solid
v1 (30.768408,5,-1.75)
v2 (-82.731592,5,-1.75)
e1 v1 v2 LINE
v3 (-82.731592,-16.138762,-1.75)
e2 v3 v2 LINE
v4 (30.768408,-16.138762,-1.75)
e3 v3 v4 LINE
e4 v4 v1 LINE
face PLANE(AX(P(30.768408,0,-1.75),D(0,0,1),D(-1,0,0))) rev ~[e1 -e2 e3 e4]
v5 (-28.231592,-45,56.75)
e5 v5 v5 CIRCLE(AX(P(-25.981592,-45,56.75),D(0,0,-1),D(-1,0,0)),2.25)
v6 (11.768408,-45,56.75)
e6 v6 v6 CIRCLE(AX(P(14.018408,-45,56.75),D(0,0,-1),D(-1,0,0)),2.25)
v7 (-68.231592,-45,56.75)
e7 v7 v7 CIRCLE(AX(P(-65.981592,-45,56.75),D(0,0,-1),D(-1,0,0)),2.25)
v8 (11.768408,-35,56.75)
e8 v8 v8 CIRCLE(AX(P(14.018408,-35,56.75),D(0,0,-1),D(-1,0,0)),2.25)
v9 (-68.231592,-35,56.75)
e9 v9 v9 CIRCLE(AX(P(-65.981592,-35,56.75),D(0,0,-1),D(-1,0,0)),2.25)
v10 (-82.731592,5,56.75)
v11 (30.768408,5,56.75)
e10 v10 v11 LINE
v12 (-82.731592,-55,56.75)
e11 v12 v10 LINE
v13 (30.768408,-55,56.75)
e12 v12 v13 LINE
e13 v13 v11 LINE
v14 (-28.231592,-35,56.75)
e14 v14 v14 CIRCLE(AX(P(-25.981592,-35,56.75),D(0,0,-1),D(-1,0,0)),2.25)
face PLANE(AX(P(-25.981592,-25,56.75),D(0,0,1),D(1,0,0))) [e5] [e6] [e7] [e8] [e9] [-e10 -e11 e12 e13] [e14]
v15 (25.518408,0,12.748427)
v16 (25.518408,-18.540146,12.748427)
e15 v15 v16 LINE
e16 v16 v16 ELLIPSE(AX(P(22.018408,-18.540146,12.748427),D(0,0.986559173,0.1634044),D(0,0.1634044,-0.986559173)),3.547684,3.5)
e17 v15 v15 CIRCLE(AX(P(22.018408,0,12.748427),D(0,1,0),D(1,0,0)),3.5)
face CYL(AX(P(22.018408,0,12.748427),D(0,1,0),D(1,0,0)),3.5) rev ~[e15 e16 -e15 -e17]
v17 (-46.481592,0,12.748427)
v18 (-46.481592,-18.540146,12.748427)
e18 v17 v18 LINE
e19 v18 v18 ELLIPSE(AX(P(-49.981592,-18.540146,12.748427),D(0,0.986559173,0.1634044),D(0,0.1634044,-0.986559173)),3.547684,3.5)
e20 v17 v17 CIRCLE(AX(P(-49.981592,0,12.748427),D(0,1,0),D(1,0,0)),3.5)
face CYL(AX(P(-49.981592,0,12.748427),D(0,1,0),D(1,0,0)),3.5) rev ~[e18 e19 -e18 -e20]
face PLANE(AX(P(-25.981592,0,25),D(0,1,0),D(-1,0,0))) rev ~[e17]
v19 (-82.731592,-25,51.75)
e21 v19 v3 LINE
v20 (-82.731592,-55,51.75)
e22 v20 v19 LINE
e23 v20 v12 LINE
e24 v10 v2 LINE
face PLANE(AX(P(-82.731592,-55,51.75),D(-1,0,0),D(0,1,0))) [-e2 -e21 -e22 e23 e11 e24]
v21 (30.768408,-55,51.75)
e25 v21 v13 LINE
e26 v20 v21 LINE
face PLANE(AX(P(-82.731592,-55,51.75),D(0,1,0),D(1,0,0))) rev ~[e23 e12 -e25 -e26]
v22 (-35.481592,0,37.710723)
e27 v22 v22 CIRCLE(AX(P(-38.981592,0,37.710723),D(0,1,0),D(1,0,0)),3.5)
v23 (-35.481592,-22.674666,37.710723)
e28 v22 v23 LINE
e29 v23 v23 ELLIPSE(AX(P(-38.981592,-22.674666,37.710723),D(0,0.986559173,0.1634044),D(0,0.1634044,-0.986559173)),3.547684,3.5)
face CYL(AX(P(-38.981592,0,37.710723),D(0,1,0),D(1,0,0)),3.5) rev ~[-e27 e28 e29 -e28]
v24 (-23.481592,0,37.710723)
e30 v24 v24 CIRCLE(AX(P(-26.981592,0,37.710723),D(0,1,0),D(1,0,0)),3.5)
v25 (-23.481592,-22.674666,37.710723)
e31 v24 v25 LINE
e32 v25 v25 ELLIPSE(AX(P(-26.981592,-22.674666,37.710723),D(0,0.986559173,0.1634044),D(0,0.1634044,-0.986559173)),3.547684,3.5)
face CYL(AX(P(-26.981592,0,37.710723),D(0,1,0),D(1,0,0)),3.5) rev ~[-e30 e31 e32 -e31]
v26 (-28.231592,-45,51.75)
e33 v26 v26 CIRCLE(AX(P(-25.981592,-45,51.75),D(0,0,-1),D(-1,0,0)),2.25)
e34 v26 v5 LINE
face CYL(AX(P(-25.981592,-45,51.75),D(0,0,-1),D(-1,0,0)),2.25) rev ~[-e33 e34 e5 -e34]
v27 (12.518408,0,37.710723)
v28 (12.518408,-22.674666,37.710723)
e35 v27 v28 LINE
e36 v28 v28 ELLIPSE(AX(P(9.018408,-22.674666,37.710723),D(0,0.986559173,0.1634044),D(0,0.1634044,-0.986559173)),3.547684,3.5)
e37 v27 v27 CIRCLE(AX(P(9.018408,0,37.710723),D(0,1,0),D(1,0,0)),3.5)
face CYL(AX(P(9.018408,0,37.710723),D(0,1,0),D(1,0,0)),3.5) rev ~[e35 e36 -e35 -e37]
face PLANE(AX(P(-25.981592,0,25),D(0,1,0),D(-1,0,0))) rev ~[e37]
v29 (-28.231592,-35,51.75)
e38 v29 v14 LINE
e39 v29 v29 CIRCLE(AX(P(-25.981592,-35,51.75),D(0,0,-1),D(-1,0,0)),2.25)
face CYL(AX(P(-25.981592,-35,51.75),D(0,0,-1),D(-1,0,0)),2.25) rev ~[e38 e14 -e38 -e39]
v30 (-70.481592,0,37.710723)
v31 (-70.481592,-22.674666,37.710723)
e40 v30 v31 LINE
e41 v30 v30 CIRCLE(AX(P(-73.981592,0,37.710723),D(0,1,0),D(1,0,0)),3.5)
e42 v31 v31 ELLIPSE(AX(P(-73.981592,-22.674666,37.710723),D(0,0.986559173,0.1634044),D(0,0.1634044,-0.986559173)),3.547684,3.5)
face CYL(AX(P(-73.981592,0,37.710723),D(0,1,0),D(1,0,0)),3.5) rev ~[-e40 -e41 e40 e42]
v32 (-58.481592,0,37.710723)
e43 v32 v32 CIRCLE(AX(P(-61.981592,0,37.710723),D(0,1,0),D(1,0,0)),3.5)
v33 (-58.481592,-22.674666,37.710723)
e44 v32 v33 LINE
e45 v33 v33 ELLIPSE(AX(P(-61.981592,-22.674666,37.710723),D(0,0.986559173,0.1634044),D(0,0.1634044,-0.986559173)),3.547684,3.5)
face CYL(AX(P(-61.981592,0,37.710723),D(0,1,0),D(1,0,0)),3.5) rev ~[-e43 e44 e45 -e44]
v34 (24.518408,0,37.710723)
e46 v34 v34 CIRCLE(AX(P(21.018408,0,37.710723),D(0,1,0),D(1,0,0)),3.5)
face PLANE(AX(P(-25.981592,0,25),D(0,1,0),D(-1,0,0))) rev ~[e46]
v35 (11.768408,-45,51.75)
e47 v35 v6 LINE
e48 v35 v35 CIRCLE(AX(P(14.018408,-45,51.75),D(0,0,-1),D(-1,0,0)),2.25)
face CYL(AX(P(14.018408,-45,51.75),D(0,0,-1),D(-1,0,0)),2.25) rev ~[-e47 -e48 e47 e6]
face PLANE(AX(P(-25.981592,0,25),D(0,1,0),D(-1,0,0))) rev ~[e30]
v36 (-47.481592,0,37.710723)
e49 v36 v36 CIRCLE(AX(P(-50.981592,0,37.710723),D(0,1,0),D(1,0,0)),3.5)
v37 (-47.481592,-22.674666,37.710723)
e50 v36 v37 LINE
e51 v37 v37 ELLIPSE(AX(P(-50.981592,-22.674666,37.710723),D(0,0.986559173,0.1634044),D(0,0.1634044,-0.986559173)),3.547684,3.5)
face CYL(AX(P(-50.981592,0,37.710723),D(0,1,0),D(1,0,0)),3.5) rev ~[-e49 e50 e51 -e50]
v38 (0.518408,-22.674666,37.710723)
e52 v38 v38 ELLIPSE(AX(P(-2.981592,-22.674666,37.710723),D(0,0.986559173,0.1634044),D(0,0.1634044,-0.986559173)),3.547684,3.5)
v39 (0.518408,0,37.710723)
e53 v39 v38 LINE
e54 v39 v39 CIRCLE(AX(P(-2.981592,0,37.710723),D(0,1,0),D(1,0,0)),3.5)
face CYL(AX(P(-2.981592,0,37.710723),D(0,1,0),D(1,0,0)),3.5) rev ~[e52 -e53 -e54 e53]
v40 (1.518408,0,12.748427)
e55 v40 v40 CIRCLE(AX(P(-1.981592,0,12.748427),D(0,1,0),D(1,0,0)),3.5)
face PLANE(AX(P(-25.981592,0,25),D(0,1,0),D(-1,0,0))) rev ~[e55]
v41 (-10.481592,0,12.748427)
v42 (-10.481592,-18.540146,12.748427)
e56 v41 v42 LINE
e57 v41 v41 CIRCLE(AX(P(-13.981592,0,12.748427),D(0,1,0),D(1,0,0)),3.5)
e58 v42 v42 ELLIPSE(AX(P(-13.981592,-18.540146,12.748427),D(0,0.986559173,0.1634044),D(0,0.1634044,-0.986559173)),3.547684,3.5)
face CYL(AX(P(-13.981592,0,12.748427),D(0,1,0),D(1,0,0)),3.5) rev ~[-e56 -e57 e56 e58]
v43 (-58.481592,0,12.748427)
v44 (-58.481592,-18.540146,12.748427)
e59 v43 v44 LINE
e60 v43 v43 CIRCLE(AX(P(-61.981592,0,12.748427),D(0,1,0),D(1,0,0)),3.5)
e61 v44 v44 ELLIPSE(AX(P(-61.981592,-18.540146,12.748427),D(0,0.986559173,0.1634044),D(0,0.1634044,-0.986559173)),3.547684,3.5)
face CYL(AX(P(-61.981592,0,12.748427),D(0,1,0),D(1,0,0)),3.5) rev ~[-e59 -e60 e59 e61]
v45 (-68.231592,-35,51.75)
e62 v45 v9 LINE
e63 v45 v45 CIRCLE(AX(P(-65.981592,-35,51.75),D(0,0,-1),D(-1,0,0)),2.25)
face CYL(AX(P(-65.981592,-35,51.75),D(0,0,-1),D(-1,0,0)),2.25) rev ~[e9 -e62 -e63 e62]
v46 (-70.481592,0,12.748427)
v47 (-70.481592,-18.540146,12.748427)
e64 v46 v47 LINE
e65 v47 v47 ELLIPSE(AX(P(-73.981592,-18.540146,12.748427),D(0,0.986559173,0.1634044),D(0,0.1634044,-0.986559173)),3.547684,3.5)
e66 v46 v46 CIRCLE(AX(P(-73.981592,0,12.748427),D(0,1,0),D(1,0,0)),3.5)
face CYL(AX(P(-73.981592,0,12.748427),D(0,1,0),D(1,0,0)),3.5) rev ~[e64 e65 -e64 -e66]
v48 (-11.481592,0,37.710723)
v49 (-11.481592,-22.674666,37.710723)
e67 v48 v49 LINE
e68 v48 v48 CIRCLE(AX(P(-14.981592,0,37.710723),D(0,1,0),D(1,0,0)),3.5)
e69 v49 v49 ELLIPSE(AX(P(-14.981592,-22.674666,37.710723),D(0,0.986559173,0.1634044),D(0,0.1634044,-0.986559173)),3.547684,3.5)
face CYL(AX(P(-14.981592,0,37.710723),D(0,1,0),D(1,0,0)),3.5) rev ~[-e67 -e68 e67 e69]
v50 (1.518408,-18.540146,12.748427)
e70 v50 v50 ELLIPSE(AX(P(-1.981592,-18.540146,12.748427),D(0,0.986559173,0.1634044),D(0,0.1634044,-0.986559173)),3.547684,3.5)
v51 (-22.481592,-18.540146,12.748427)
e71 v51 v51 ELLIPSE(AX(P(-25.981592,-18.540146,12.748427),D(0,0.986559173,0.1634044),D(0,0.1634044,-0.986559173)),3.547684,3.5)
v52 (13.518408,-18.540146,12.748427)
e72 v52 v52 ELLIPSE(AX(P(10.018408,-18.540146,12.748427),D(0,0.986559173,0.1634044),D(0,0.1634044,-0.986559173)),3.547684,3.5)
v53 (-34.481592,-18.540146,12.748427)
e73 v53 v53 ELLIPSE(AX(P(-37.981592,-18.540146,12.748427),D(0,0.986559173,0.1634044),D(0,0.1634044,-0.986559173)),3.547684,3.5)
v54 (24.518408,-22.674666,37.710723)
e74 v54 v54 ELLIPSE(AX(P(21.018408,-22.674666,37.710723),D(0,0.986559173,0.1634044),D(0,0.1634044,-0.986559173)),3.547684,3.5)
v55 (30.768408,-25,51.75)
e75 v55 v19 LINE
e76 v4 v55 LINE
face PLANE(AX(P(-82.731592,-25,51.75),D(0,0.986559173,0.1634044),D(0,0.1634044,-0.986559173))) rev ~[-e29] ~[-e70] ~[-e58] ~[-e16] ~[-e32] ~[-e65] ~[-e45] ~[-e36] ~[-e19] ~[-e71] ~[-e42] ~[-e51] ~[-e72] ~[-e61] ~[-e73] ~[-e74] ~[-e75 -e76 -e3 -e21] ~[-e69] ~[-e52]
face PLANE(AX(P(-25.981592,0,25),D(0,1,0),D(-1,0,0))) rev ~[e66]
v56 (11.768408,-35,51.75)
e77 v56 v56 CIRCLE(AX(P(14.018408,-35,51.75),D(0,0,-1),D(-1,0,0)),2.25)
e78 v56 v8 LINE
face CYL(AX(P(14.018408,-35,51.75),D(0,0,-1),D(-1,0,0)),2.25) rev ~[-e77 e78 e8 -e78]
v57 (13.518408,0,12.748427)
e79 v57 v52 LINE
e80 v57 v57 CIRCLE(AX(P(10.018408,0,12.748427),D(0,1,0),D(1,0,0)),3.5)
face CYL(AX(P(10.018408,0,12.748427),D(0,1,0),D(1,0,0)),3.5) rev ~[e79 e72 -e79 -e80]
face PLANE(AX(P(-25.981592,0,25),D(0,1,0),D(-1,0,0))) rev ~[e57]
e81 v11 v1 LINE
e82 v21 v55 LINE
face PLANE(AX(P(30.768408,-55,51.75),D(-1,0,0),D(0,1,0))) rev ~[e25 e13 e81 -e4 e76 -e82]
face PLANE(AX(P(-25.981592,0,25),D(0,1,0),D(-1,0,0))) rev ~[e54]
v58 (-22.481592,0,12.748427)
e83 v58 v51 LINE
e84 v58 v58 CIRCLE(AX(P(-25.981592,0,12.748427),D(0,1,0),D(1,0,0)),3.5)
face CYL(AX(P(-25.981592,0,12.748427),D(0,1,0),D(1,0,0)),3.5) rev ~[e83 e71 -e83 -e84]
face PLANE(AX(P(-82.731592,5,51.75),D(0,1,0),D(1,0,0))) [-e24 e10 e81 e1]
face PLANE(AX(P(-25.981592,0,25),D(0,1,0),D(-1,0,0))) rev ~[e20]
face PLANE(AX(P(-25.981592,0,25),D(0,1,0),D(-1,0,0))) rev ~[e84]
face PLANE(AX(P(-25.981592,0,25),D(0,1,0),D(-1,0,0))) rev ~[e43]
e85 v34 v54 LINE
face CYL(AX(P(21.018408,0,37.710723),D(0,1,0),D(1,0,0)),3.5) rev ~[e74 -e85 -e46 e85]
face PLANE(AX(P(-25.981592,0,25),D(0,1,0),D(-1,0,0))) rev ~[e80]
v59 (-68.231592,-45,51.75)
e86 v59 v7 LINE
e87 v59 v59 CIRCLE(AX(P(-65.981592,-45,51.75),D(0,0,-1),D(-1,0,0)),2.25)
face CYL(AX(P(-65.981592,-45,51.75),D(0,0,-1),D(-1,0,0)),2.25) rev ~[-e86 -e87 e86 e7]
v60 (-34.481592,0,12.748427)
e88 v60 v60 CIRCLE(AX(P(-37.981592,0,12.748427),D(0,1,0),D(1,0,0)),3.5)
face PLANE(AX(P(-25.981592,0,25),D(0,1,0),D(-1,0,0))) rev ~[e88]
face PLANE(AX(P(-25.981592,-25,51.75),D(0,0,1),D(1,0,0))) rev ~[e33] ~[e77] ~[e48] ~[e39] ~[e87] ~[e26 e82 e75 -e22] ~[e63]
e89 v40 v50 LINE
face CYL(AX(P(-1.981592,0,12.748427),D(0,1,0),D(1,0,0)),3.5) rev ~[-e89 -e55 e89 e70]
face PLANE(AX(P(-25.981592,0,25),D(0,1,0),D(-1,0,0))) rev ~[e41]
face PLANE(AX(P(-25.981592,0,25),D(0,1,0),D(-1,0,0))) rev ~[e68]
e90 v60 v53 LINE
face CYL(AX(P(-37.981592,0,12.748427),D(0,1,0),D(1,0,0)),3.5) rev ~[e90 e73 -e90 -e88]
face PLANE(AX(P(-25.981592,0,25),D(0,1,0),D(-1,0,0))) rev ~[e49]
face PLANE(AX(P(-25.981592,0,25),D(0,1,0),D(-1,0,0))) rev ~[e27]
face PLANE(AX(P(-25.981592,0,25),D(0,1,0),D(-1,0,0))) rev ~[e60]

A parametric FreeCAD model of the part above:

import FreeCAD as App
import Part
import Sketcher
from FreeCAD import Vector
Q = App.Units.Quantity


def add_polygon(sketch, points):
    """Adds a closed chain of lines whose ends are joined by coincident constraints."""
    first, n = sketch.GeometryCount, len(points)
    for a, b in zip(points, points[1:] + points[:1]):
        sketch.addGeometry(Part.LineSegment(App.Vector(*a, 0), App.Vector(*b, 0)), False)
    for i in range(n):
        sketch.addConstraint(Sketcher.Constraint("Coincident", first + i, 2, first + (i + 1) % n, 1))

doc = App.newDocument("Part")
body = doc.addObject("PartDesign::Body", "Body")

sketch1 = body.newObject("Sketcher::SketchObject", "Sketch")
sketch1.AttachmentSupport = (doc.getObject("XZ_Plane"), [""])
sketch1.MapMode = "FlatFace"
add_polygon(sketch1, [(30.768408, 51.75), (-82.731592, 51.75), (-82.731592, -1.75), (30.768408, -1.75)])
sketch1.addGeometry(Part.Circle(Vector(-73.981592, 37.710723, 0), Vector(0, 0, 1), 3.5), False)
sketch1.addGeometry(Part.Circle(Vector(-61.981592, 37.710723, 0), Vector(0, 0, 1), 3.5), False)
sketch1.addGeometry(Part.Circle(Vector(-50.981592, 37.710723, 0), Vector(0, 0, 1), 3.5), False)
sketch1.addGeometry(Part.Circle(Vector(-38.981592, 37.710723, 0), Vector(0, 0, 1), 3.5), False)
sketch1.addGeometry(Part.Circle(Vector(-26.981592, 37.710723, 0), Vector(0, 0, 1), 3.5), False)
sketch1.addGeometry(Part.Circle(Vector(-14.981592, 37.710723, 0), Vector(0, 0, 1), 3.5), False)
sketch1.addGeometry(Part.Circle(Vector(-2.981592, 37.710723, 0), Vector(0, 0, 1), 3.5), False)
sketch1.addGeometry(Part.Circle(Vector(9.018408, 37.710723, 0), Vector(0, 0, 1), 3.5), False)
sketch1.addGeometry(Part.Circle(Vector(21.018408, 37.710723, 0), Vector(0, 0, 1), 3.5), False)
sketch1.addGeometry(Part.Circle(Vector(-73.981592, 12.748427, 0), Vector(0, 0, 1), 3.5), False)
sketch1.addGeometry(Part.Circle(Vector(-61.981592, 12.748427, 0), Vector(0, 0, 1), 3.5), False)
sketch1.addGeometry(Part.Circle(Vector(-49.981592, 12.748427, 0), Vector(0, 0, 1), 3.5), False)
sketch1.addGeometry(Part.Circle(Vector(-37.981592, 12.748427, 0), Vector(0, 0, 1), 3.5), False)
sketch1.addGeometry(Part.Circle(Vector(-25.981592, 12.748427, 0), Vector(0, 0, 1), 3.5), False)
sketch1.addGeometry(Part.Circle(Vector(-13.981592, 12.748427, 0), Vector(0, 0, 1), 3.5), False)
sketch1.addGeometry(Part.Circle(Vector(-1.981592, 12.748427, 0), Vector(0, 0, 1), 3.5), False)
sketch1.addGeometry(Part.Circle(Vector(10.018408, 12.748427, 0), Vector(0, 0, 1), 3.5), False)
sketch1.addGeometry(Part.Circle(Vector(22.018408, 12.748427, 0), Vector(0, 0, 1), 3.5), False)
sketch1.addConstraint([
    Sketcher.Constraint("Horizontal", 0),
    Sketcher.Constraint("Vertical", 1),
    Sketcher.Constraint("Horizontal", 2),
    Sketcher.Constraint("Vertical", 3),
    Sketcher.Constraint("Equal", 4, 5),
    Sketcher.Constraint("Equal", 5, 6),
    Sketcher.Constraint("Equal", 6, 7),
    Sketcher.Constraint("Equal", 7, 8),
    Sketcher.Constraint("Equal", 8, 9),
    Sketcher.Constraint("Equal", 9, 10),
    Sketcher.Constraint("Equal", 10, 11),
    Sketcher.Constraint("Equal", 11, 12),
    Sketcher.Constraint("Equal", 12, 13),
    Sketcher.Constraint("Equal", 13, 14),
    Sketcher.Constraint("Equal", 14, 15),
    Sketcher.Constraint("Equal", 15, 16),
    Sketcher.Constraint("Equal", 16, 17),
    Sketcher.Constraint("Equal", 17, 18),
    Sketcher.Constraint("Equal", 18, 19),
    Sketcher.Constraint("Equal", 19, 20),
    Sketcher.Constraint("Equal", 20, 21),
    Sketcher.Constraint("Horizontal", 4, 3, 5, 3),
    Sketcher.Constraint("Horizontal", 5, 3, 6, 3),
    Sketcher.Constraint("Horizontal", 6, 3, 7, 3),
    Sketcher.Constraint("Horizontal", 7, 3, 8, 3),
    Sketcher.Constraint("Horizontal", 8, 3, 9, 3),
    Sketcher.Constraint("Horizontal", 9, 3, 10, 3),
    Sketcher.Constraint("Horizontal", 10, 3, 11, 3),
    Sketcher.Constraint("Horizontal", 11, 3, 12, 3),
    Sketcher.Constraint("Horizontal", 13, 3, 14, 3),
    Sketcher.Constraint("Horizontal", 14, 3, 15, 3),
    Sketcher.Constraint("Horizontal", 15, 3, 16, 3),
    Sketcher.Constraint("Horizontal", 16, 3, 17, 3),
    Sketcher.Constraint("Horizontal", 17, 3, 18, 3),
    Sketcher.Constraint("Horizontal", 18, 3, 19, 3),
    Sketcher.Constraint("Horizontal", 19, 3, 20, 3),
    Sketcher.Constraint("Horizontal", 20, 3, 21, 3),
    Sketcher.Constraint("Vertical", 4, 3, 13, 3),
    Sketcher.Constraint("Vertical", 5, 3, 14, 3),
    Sketcher.Constraint("Diameter", 4, Q("7 mm")),
    Sketcher.Constraint("DistanceX", 0, 2, 0, 1, Q("113.5 mm")),
    Sketcher.Constraint("DistanceY", 1, 2, 1, 1, Q("53.5 mm")),
    Sketcher.Constraint("DistanceX", 4, 3, 5, 3, Q("12 mm")),
    Sketcher.Constraint("DistanceX", 5, 3, 6, 3, Q("11 mm")),
    Sketcher.Constraint("DistanceX", 6, 3, 7, 3, Q("12 mm")),
    Sketcher.Constraint("DistanceX", 7, 3, 8, 3, Q("12 mm")),
    Sketcher.Constraint("DistanceX", 8, 3, 9, 3, Q("12 mm")),
    Sketcher.Constraint("DistanceX", 9, 3, 10, 3, Q("12 mm")),
    Sketcher.Constraint("DistanceX", 10, 3, 11, 3, Q("12 mm")),
    Sketcher.Constraint("DistanceX", 11, 3, 12, 3, Q("12 mm")),
    Sketcher.Constraint("DistanceX", 14, 3, 15, 3, Q("12 mm")),
    Sketcher.Constraint("DistanceX", 15, 3, 16, 3, Q("12 mm")),
    Sketcher.Constraint("DistanceX", 16, 3, 17, 3, Q("12 mm")),
    Sketcher.Constraint("DistanceX", 17, 3, 18, 3, Q("12 mm")),
    Sketcher.Constraint("DistanceX", 18, 3, 19, 3, Q("12 mm")),
    Sketcher.Constraint("DistanceX", 19, 3, 20, 3, Q("12 mm")),
    Sketcher.Constraint("DistanceX", 20, 3, 21, 3, Q("12 mm")),
    Sketcher.Constraint("DistanceY", -1, 1, 0, 2, Q("51.75 mm")),
    Sketcher.Constraint("DistanceX", 0, 2, 4, 3, Q("8.75 mm")),
    Sketcher.Constraint("DistanceX", 4, 3, -1, 1, Q("73.981592 mm")),
    Sketcher.Constraint("DistanceY", -1, 1, 4, 3, Q("37.710723 mm")),
    Sketcher.Constraint("DistanceY", -1, 1, 13, 3, Q("12.748427 mm")),
])
pad1 = body.newObject("PartDesign::Pad", "Pad")
pad1.Profile = sketch1
pad1.Length = 25

sketch2 = body.newObject("Sketcher::SketchObject", "Sketch001")
sketch2.AttachmentSupport = (doc.getObject("XZ_Plane"), [""])
sketch2.MapMode = "FlatFace"
add_polygon(sketch2, [(30.768408, 51.75), (30.768408, -1.75), (-82.731592, -1.75), (-82.731592, 51.75)])
sketch2.addConstraint([
    Sketcher.Constraint("Vertical", 0),
    Sketcher.Constraint("Horizontal", 1),
    Sketcher.Constraint("Vertical", 2),
    Sketcher.Constraint("Horizontal", 3),
    Sketcher.Constraint("DistanceX", 1, 2, 1, 1, Q("113.5 mm")),
    Sketcher.Constraint("DistanceY", 0, 2, 0, 1, Q("53.5 mm")),
    Sketcher.Constraint("DistanceY", 0, 2, -1, 1, Q("1.75 mm")),
    Sketcher.Constraint("DistanceX", -1, 1, 0, 2, Q("30.768408 mm")),
])
pad2 = body.newObject("PartDesign::Pad", "Pad001")
pad2.Profile = sketch2
pad2.Length = 5
pad2.Reversed = True

sketch3 = body.newObject("Sketcher::SketchObject", "Sketch002")
sketch3.AttachmentSupport = (doc.getObject("YZ_Plane"), [""])
sketch3.MapMode = "FlatFace"
sketch3.AttachmentOffset = App.Placement(Vector(0, 0, -82.731592), App.Rotation())
add_polygon(sketch3, [(-25, -1.75), (-25, 51.75), (-16.138762, -1.75)])
sketch3.addConstraint([
    Sketcher.Constraint("Vertical", 0),
    Sketcher.Constraint("Horizontal", 2),
    Sketcher.Constraint("DistanceY", 0, 1, 0, 2, Q("53.5 mm")),
    Sketcher.Constraint("DistanceX", 0, 2, -1, 1, Q("25 mm")),
    Sketcher.Constraint("DistanceY", -1, 1, 0, 2, Q("51.75 mm")),
    Sketcher.Constraint("Distance", 1, Q("54.228881 mm")),
])
pocket1 = body.newObject("PartDesign::Pocket", "Pocket")
pocket1.Profile = sketch3
pocket1.Length = 133.9
pocket1.Reversed = True

sketch4 = body.newObject("Sketcher::SketchObject", "Sketch003")
sketch4.AttachmentSupport = (doc.getObject("XY_Plane"), [""])
sketch4.MapMode = "FlatFace"
sketch4.AttachmentOffset = App.Placement(Vector(0, 0, 51.75), App.Rotation())
add_polygon(sketch4, [(-82.731592, 5), (-82.731592, -55), (30.768408, -55), (30.768408, 5)])
sketch4.addConstraint([
    Sketcher.Constraint("Vertical", 0),
    Sketcher.Constraint("Horizontal", 1),
    Sketcher.Constraint("Vertical", 2),
    Sketcher.Constraint("Horizontal", 3),
    Sketcher.Constraint("DistanceY", 0, 2, 0, 1, Q("60 mm")),
    Sketcher.Constraint("DistanceX", 1, 1, 1, 2, Q("113.5 mm")),
    Sketcher.Constraint("DistanceY", 0, 2, -1, 1, Q("55 mm")),
    Sketcher.Constraint("DistanceX", 0, 2, -1, 1, Q("82.731592 mm")),
])
pad3 = body.newObject("PartDesign::Pad", "Pad002")
pad3.Profile = sketch4
pad3.Length = 5

sketch5 = body.newObject("Sketcher::SketchObject", "Sketch004")
sketch5.AttachmentSupport = (doc.getObject("XY_Plane"), [""])
sketch5.MapMode = "FlatFace"
sketch5.AttachmentOffset = App.Placement(Vector(0, 0, 51.75), App.Rotation())
sketch5.addGeometry([
    Part.Circle(Vector(-65.981592, -45, 0), Vector(0, 0, 1), 2.25),
    Part.Circle(Vector(14.018408, -45, 0), Vector(0, 0, 1), 2.25),
    Part.Circle(Vector(-25.981592, -45, 0), Vector(0, 0, 1), 2.25),
    Part.Circle(Vector(-65.981592, -35, 0), Vector(0, 0, 1), 2.25),
    Part.Circle(Vector(14.018408, -35, 0), Vector(0, 0, 1), 2.25),
    Part.Circle(Vector(-25.981592, -35, 0), Vector(0, 0, 1), 2.25),
], False)
sketch5.addConstraint([
    Sketcher.Constraint("Equal", 0, 1),
    Sketcher.Constraint("Equal", 1, 2),
    Sketcher.Constraint("Equal", 2, 3),
    Sketcher.Constraint("Equal", 3, 4),
    Sketcher.Constraint("Equal", 4, 5),
    Sketcher.Constraint("Horizontal", 0, 3, 1, 3),
    Sketcher.Constraint("Horizontal", 1, 3, 2, 3),
    Sketcher.Constraint("Horizontal", 3, 3, 4, 3),
    Sketcher.Constraint("Horizontal", 4, 3, 5, 3),
    Sketcher.Constraint("Vertical", 0, 3, 3, 3),
    Sketcher.Constraint("Vertical", 1, 3, 4, 3),
    Sketcher.Constraint("Vertical", 2, 3, 5, 3),
    Sketcher.Constraint("Diameter", 0, Q("4.5 mm")),
    Sketcher.Constraint("DistanceY", 0, 3, -1, 1, Q("45 mm")),
    Sketcher.Constraint("DistanceY", 3, 3, -1, 1, Q("35 mm")),
    Sketcher.Constraint("DistanceX", 0, 3, 1, 3, Q("80 mm")),
    Sketcher.Constraint("DistanceX", 2, 3, 1, 3, Q("40 mm")),
    Sketcher.Constraint("DistanceX", 0, 3, -1, 1, Q("65.981592 mm")),
])
pocket2 = body.newObject("PartDesign::Pocket", "Pocket001")
pocket2.Profile = sketch5
pocket2.Length = 25
pocket2.Reversed = True

doc.recompute()
